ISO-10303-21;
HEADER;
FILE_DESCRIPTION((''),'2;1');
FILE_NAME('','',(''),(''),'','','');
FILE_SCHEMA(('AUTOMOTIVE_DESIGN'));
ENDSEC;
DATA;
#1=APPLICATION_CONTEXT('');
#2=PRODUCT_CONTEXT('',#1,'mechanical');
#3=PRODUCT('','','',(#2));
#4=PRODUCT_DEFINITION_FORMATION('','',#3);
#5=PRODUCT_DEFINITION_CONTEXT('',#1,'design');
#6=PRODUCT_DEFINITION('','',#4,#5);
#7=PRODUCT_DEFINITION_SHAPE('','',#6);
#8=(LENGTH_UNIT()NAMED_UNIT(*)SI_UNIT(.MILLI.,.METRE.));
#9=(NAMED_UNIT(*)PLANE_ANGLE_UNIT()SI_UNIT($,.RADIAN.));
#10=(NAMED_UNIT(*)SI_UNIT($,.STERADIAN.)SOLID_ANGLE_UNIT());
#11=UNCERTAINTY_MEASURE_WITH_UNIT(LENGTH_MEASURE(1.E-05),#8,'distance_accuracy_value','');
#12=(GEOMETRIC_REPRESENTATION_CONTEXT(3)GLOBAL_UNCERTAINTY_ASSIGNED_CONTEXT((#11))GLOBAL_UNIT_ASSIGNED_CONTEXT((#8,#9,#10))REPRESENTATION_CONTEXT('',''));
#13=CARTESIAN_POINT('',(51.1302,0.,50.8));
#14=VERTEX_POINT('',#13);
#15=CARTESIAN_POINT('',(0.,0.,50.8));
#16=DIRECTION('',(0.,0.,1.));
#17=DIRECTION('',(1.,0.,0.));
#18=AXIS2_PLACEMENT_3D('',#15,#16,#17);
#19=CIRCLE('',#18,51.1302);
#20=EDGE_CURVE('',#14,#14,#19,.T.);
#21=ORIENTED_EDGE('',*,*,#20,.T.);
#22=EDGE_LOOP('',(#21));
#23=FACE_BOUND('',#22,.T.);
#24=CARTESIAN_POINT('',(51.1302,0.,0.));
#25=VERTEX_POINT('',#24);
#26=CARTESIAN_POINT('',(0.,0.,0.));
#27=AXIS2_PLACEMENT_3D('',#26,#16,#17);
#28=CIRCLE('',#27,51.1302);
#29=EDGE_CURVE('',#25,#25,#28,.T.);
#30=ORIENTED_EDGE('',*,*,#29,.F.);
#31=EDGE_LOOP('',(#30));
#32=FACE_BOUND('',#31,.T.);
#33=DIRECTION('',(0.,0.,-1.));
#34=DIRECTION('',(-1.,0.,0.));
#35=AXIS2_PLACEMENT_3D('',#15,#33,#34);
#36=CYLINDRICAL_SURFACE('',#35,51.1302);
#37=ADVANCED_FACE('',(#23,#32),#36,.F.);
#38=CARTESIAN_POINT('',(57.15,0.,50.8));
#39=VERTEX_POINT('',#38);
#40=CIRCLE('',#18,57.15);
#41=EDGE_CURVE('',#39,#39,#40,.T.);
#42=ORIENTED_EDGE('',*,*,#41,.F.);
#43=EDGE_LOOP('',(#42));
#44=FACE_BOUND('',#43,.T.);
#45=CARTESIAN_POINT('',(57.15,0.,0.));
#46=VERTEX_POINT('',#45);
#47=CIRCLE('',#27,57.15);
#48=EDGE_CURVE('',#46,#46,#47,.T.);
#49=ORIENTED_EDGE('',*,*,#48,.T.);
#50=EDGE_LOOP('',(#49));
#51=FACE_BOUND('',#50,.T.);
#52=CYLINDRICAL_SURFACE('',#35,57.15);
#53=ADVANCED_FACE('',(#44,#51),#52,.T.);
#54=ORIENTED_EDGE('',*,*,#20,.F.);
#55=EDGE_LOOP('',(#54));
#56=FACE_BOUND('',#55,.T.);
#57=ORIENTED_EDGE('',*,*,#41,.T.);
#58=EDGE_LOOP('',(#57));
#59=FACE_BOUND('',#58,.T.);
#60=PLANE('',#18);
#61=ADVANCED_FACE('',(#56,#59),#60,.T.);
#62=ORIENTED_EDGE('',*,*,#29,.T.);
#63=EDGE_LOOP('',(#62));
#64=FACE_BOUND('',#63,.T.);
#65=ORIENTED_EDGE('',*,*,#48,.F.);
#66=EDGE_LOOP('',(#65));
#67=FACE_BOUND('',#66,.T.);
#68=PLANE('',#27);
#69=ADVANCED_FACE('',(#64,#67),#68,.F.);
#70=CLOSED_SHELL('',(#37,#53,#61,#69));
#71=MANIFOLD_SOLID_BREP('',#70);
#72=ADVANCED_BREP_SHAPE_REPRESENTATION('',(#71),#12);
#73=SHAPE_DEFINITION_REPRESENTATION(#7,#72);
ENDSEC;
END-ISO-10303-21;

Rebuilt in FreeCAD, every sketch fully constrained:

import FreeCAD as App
import Part
import Sketcher

V = App.Vector
Q = App.Units.Quantity

doc = App.newDocument("Part")
body = doc.addObject("PartDesign::Body", "Body")

sketch1 = body.newObject("Sketcher::SketchObject", "Sketch")
sketch1.AttachmentSupport = (doc.getObject("XY_Plane"), [""])
sketch1.MapMode = "FlatFace"
sketch1.addGeometry(Part.Circle(V(0, 0, 0), V(0, 0, 1), 57.15), False)
sketch1.addGeometry(Part.Circle(V(0, 0, 0), V(0, 0, 1), 51.1302), False)
sketch1.addConstraint(Sketcher.Constraint("Coincident", 0, 3, -1, 1))
sketch1.addConstraint(Sketcher.Constraint("Coincident", 1, 3, -1, 1))
sketch1.addConstraint(Sketcher.Constraint("Diameter", 0, Q("4.5 in")))
sketch1.addConstraint(Sketcher.Constraint("Diameter", 1, Q("4.026 in")))
pad1 = body.newObject("PartDesign::Pad", "Pad")
pad1.Profile = sketch1
pad1.Length = Q("2 in")

doc.recompute()
